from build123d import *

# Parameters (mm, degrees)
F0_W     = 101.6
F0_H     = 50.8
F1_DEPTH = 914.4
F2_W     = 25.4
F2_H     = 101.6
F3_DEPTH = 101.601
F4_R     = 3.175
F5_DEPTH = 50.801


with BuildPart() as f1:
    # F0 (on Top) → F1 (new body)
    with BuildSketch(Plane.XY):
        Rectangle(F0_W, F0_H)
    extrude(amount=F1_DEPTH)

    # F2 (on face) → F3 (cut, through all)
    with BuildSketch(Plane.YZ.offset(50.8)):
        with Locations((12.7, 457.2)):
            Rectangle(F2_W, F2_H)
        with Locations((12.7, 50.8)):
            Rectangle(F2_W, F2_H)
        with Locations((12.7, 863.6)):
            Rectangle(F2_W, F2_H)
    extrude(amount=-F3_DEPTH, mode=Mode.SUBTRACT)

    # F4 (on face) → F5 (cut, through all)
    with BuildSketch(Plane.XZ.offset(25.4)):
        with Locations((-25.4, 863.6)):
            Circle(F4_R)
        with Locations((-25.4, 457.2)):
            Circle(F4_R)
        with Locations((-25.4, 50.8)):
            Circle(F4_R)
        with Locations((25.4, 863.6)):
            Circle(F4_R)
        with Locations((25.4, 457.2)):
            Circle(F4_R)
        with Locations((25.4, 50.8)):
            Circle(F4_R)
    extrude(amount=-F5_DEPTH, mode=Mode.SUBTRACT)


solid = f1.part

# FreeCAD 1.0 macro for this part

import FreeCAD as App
import Part
import Sketcher
from FreeCAD import Vector
Q = App.Units.Quantity

doc = App.newDocument("Part")
body = doc.addObject("PartDesign::Body", "Body")

sketch1 = doc.addObject("Sketcher::SketchObject", "Sketch")
body.addObject(sketch1)
sketch1.AttachmentSupport = (doc.XY_Plane, [""])
sketch1.MapMode = "FlatFace"
sketch1.addGeometry(Part.LineSegment(Vector(-51, 25, 0), Vector(-51, -25, 0)), False)
sketch1.addGeometry(Part.LineSegment(Vector(-51, -25, 0), Vector(51, -25, 0)), False)
sketch1.addGeometry(Part.LineSegment(Vector(51, -25, 0), Vector(51, 25, 0)), False)
sketch1.addGeometry(Part.LineSegment(Vector(51, 25, 0), Vector(-51, 25, 0)), False)
sketch1.addConstraint(Sketcher.Constraint("Coincident", 0, 2, 1, 1))
sketch1.addConstraint(Sketcher.Constraint("Coincident", 1, 2, 2, 1))
sketch1.addConstraint(Sketcher.Constraint("Coincident", 2, 2, 3, 1))
sketch1.addConstraint(Sketcher.Constraint("Coincident", 3, 2, 0, 1))
sketch1.addConstraint(Sketcher.Constraint("Vertical", 0))
sketch1.addConstraint(Sketcher.Constraint("Horizontal", 1))
sketch1.addConstraint(Sketcher.Constraint("Vertical", 2))
sketch1.addConstraint(Sketcher.Constraint("Horizontal", 3))
sketch1.addConstraint(Sketcher.Constraint("Symmetric", 0, 2, 2, 2, -1, 1))
sketch1.addConstraint(Sketcher.Constraint("DistanceX", 1, 1, 1, 2, Q("4 in")))
sketch1.addConstraint(Sketcher.Constraint("DistanceY", 0, 2, 0, 1, Q("2 in")))
pad1 = doc.addObject("PartDesign::Pad", "Pad")
body.addObject(pad1)
pad1.Profile = sketch1
pad1.Length = Q("36 in")

sketch2 = doc.addObject("Sketcher::SketchObject", "Sketch001")
body.addObject(sketch2)
sketch2.AttachmentSupport = (doc.YZ_Plane, [""])
sketch2.MapMode = "FlatFace"
sketch2.AttachmentOffset = App.Placement(Vector(0, 0, 2 * 25.4), App.Rotation())
sketch2.addGeometry(Part.LineSegment(Vector(0, 508, 0), Vector(0, 406, 0)), False)
sketch2.addGeometry(Part.LineSegment(Vector(0, 406, 0), Vector(25, 406, 0)), False)
sketch2.addGeometry(Part.LineSegment(Vector(25, 406, 0), Vector(25, 508, 0)), False)
sketch2.addGeometry(Part.LineSegment(Vector(25, 508, 0), Vector(0, 508, 0)), False)
sketch2.addGeometry(Part.LineSegment(Vector(0, 102, 0), Vector(0, 0, 0)), False)
sketch2.addGeometry(Part.LineSegment(Vector(0, 0, 0), Vector(25, 0, 0)), False)
sketch2.addGeometry(Part.LineSegment(Vector(25, 0, 0), Vector(25, 102, 0)), False)
sketch2.addGeometry(Part.LineSegment(Vector(25, 102, 0), Vector(0, 102, 0)), False)
sketch2.addGeometry(Part.LineSegment(Vector(0, 914, 0), Vector(0, 813, 0)), False)
sketch2.addGeometry(Part.LineSegment(Vector(0, 813, 0), Vector(25, 813, 0)), False)
sketch2.addGeometry(Part.LineSegment(Vector(25, 813, 0), Vector(25, 914, 0)), False)
sketch2.addGeometry(Part.LineSegment(Vector(25, 914, 0), Vector(0, 914, 0)), False)
sketch2.addConstraint(Sketcher.Constraint("Coincident", 0, 2, 1, 1))
sketch2.addConstraint(Sketcher.Constraint("Coincident", 1, 2, 2, 1))
sketch2.addConstraint(Sketcher.Constraint("Coincident", 2, 2, 3, 1))
sketch2.addConstraint(Sketcher.Constraint("Coincident", 3, 2, 0, 1))
sketch2.addConstraint(Sketcher.Constraint("Coincident", 4, 2, 5, 1))
sketch2.addConstraint(Sketcher.Constraint("Coincident", 5, 2, 6, 1))
sketch2.addConstraint(Sketcher.Constraint("Coincident", 6, 2, 7, 1))
sketch2.addConstraint(Sketcher.Constraint("Coincident", 7, 2, 4, 1))
sketch2.addConstraint(Sketcher.Constraint("Coincident", 8, 2, 9, 1))
sketch2.addConstraint(Sketcher.Constraint("Coincident", 9, 2, 10, 1))
sketch2.addConstraint(Sketcher.Constraint("Coincident", 10, 2, 11, 1))
sketch2.addConstraint(Sketcher.Constraint("Coincident", 11, 2, 8, 1))
sketch2.addConstraint(Sketcher.Constraint("Vertical", 0))
sketch2.addConstraint(Sketcher.Constraint("Horizontal", 1))
sketch2.addConstraint(Sketcher.Constraint("Vertical", 2))
sketch2.addConstraint(Sketcher.Constraint("Horizontal", 3))
sketch2.addConstraint(Sketcher.Constraint("Vertical", 4))
sketch2.addConstraint(Sketcher.Constraint("Horizontal", 5))
sketch2.addConstraint(Sketcher.Constraint("Vertical", 6))
sketch2.addConstraint(Sketcher.Constraint("Horizontal", 7))
sketch2.addConstraint(Sketcher.Constraint("Vertical", 8))
sketch2.addConstraint(Sketcher.Constraint("Horizontal", 9))
sketch2.addConstraint(Sketcher.Constraint("Vertical", 10))
sketch2.addConstraint(Sketcher.Constraint("Horizontal", 11))
sketch2.addConstraint(Sketcher.Constraint("Coincident", 4, 2, -1, 1))
sketch2.addConstraint(Sketcher.Constraint("PointOnObject", 0, 2, -2))
sketch2.addConstraint(Sketcher.Constraint("PointOnObject", 8, 2, -2))
sketch2.addConstraint(Sketcher.Constraint("Vertical", 2, 2, 5, 2))
sketch2.addConstraint(Sketcher.Constraint("Vertical", 6, 2, 9, 2))
sketch2.addConstraint(Sketcher.Constraint("Equal", 2, 4))
sketch2.addConstraint(Sketcher.Constraint("Equal", 6, 8))
sketch2.addConstraint(Sketcher.Constraint("DistanceX", 1, 1, 1, 2, Q("1 in")))
sketch2.addConstraint(Sketcher.Constraint("DistanceY", 0, 2, 0, 1, Q("4 in")))
sketch2.addConstraint(Sketcher.Constraint("DistanceY", -1, 1, 0, 2, Q("16 in")))
sketch2.addConstraint(Sketcher.Constraint("DistanceY", -1, 1, 8, 2, Q("32 in")))
pocket1 = doc.addObject("PartDesign::Pocket", "Pocket")
body.addObject(pocket1)
pocket1.Profile = sketch2
pocket1.Type = "ThroughAll"

sketch3 = doc.addObject("Sketcher::SketchObject", "Sketch002")
body.addObject(sketch3)
sketch3.AttachmentSupport = (doc.XZ_Plane, [""])
sketch3.MapMode = "FlatFace"
sketch3.AttachmentOffset = App.Placement(Vector(0, 0, 1 * 25.4), App.Rotation())
sketch3.addGeometry(Part.Circle(Vector(-25.4, 863.6, 0), Vector(0, 0, 1), 3.2), False)
sketch3.addGeometry(Part.Circle(Vector(-25.4, 457.2, 0), Vector(0, 0, 1), 3.2), False)
sketch3.addGeometry(Part.Circle(Vector(-25.4, 50.8, 0), Vector(0, 0, 1), 3.2), False)
sketch3.addGeometry(Part.Circle(Vector(25.4, 863.6, 0), Vector(0, 0, 1), 3.2), False)
sketch3.addGeometry(Part.Circle(Vector(25.4, 457.2, 0), Vector(0, 0, 1), 3.2), False)
sketch3.addGeometry(Part.Circle(Vector(25.4, 50.8, 0), Vector(0, 0, 1), 3.2), False)
sketch3.addConstraint(Sketcher.Constraint("Equal", 0, 1))
sketch3.addConstraint(Sketcher.Constraint("Equal", 1, 2))
sketch3.addConstraint(Sketcher.Constraint("Equal", 2, 3))
sketch3.addConstraint(Sketcher.Constraint("Equal", 3, 4))
sketch3.addConstraint(Sketcher.Constraint("Equal", 4, 5))
sketch3.addConstraint(Sketcher.Constraint("Symmetric", 0, 3, 3, 3, -2))
sketch3.addConstraint(Sketcher.Constraint("Symmetric", 1, 3, 4, 3, -2))
sketch3.addConstraint(Sketcher.Constraint("Symmetric", 2, 3, 5, 3, -2))
sketch3.addConstraint(Sketcher.Constraint("Vertical", 0, 3, 1, 3))
sketch3.addConstraint(Sketcher.Constraint("Vertical", 1, 3, 2, 3))
sketch3.addConstraint(Sketcher.Constraint("Diameter", 0, Q("0.25 in")))
sketch3.addConstraint(Sketcher.Constraint("DistanceX", 0, 3, -1, 1, Q("1 in")))
sketch3.addConstraint(Sketcher.Constraint("DistanceY", -1, 1, 0, 3, Q("34 in")))
sketch3.addConstraint(Sketcher.Constraint("DistanceY", -1, 1, 1, 3, Q("18 in")))
sketch3.addConstraint(Sketcher.Constraint("DistanceY", -1, 1, 2, 3, Q("2 in")))
pocket2 = doc.addObject("PartDesign::Pocket", "Pocket001")
body.addObject(pocket2)
pocket2.Profile = sketch3
pocket2.Type = "ThroughAll"

doc.recompute()
